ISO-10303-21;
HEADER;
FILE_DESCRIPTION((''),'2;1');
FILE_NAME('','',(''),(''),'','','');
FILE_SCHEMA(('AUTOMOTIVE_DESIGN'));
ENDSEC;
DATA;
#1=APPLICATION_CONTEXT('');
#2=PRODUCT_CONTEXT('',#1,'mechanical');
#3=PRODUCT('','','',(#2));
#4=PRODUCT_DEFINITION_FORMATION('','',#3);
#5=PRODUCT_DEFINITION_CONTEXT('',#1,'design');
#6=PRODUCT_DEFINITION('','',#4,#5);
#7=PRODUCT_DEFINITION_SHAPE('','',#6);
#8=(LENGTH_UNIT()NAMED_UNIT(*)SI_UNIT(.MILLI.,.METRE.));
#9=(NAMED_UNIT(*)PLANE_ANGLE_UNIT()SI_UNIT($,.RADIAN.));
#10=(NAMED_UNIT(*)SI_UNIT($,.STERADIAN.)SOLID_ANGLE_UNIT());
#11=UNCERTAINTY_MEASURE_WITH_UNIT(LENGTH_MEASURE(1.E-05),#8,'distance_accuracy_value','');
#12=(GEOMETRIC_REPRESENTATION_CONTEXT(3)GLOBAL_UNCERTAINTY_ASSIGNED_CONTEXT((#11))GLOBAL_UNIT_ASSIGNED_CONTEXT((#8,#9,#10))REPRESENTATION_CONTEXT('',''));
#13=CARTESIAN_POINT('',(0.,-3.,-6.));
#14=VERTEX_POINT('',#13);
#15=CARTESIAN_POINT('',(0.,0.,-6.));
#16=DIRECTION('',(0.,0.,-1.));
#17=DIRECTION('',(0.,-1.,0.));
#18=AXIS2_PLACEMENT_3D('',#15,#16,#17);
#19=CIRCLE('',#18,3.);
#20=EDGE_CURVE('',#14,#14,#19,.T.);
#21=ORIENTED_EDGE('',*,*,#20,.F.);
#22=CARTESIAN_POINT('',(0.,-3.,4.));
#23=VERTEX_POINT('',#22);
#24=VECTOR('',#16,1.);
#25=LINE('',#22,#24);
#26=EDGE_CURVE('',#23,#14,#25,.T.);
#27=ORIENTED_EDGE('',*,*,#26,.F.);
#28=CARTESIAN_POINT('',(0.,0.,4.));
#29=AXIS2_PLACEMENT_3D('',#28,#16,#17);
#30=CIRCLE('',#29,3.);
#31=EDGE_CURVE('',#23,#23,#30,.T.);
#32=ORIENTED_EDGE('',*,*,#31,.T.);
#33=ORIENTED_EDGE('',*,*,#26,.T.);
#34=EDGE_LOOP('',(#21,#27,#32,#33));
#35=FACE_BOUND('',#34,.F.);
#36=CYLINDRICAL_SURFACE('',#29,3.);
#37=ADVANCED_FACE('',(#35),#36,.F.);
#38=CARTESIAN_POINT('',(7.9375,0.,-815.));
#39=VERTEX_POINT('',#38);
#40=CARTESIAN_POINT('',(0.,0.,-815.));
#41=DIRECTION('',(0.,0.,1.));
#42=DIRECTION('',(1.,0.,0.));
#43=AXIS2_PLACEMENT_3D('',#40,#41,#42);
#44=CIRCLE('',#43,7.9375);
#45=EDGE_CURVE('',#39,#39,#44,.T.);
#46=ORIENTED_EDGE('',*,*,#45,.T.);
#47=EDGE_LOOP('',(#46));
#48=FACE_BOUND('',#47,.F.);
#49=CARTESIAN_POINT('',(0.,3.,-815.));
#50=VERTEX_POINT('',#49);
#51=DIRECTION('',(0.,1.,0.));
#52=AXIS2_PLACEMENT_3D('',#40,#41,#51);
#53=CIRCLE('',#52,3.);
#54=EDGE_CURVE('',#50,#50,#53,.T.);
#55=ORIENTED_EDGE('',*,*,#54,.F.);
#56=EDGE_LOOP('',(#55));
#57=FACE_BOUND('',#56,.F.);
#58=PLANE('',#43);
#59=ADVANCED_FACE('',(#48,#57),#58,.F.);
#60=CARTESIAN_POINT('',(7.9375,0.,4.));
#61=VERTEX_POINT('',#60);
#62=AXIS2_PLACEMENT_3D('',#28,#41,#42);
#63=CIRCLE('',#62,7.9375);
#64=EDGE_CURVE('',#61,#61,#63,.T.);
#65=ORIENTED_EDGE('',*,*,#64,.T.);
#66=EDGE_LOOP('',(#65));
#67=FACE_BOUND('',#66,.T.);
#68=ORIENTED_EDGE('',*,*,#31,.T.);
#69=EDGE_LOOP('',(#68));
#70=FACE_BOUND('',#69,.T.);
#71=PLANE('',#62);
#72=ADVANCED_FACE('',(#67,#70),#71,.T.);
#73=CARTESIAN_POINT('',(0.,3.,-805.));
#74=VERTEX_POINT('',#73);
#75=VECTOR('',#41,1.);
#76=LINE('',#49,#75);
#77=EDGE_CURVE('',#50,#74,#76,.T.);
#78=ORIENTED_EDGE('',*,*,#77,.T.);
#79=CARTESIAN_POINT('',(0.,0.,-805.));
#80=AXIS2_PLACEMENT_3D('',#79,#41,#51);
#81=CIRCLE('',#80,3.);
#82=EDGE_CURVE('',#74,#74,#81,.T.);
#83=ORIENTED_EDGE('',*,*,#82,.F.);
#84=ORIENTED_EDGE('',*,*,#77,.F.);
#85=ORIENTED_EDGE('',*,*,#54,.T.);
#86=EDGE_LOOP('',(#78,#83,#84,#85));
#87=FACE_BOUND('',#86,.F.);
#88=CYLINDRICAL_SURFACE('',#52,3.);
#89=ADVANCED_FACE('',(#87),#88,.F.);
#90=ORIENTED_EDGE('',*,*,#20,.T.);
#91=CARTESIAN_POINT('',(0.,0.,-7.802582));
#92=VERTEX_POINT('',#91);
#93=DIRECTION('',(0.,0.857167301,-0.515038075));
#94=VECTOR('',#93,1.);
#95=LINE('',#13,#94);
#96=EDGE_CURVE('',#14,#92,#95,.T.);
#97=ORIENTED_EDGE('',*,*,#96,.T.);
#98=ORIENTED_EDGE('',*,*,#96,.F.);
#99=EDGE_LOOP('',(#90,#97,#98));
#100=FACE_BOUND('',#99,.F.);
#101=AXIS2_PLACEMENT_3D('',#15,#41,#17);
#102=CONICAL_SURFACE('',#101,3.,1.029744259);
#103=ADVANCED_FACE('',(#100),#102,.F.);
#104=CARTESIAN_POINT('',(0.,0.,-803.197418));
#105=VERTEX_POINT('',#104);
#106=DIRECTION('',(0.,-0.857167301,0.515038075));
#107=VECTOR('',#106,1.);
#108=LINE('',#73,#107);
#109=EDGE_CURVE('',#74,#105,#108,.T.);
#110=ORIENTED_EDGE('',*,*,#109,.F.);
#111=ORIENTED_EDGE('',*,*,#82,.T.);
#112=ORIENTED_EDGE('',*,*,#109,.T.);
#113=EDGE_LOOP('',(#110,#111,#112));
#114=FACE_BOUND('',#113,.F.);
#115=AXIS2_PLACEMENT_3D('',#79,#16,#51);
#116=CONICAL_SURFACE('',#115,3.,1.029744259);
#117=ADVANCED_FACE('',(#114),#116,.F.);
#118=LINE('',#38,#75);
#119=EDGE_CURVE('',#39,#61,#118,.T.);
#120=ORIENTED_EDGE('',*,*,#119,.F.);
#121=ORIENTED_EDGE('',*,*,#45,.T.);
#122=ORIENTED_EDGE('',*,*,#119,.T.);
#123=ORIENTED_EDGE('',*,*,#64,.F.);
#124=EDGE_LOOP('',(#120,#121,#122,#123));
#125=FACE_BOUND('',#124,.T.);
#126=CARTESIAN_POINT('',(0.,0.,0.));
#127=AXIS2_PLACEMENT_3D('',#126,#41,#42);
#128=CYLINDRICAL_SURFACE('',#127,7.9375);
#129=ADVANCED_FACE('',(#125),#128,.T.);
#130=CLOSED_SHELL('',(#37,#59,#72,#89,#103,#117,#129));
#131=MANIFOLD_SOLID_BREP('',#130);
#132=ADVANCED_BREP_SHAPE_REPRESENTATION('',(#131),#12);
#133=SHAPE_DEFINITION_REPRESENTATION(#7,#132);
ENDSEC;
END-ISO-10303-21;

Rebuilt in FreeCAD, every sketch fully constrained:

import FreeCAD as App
import Part
import Sketcher

V = App.Vector

doc = App.newDocument("Part")
params = doc.addObject("Spreadsheet::Sheet", "Params")
for row, (alias, value) in enumerate([
    ("pad1_length", "815 mm"),
    ("pad2_length", "4 mm"),
    ("sketch3_diameter", "6 mm"),
    ("hole_diameter", "6 mm"),
    ("hole_depth", "10 mm"),
    ("sketch4_diameter", "6 mm"),
    ("hole2_diameter", "6 mm"),
    ("hole2_depth", "10 mm"),
], start=1):
    params.set(f"A{row}", alias)
    params.set(f"B{row}", "=" + value)
    params.setAlias(f"B{row}", alias)

body = doc.addObject("PartDesign::Body", "Body")

sketch1 = doc.addObject("Sketcher::SketchObject", "Sketch")
body.addObject(sketch1)
sketch1.AttachmentSupport = (doc.XY_Plane, [""])
sketch1.MapMode = "FlatFace"
sketch1.addGeometry(Part.Circle(V(0, 0, 0), V(0, 0, 1), 8), False)
sketch1.addConstraint(Sketcher.Constraint("Coincident", 0, 3, -1, 1))
sketch1.addConstraint(Sketcher.Constraint("Diameter", 0, 15.875))
pad1 = doc.addObject("PartDesign::Pad", "Pad")
body.addObject(pad1)
pad1.Profile = sketch1
pad1.setExpression("Length", "Params.pad1_length")
pad1.Reversed = True

sketch2 = doc.addObject("Sketcher::SketchObject", "Sketch001")
body.addObject(sketch2)
sketch2.AttachmentSupport = (doc.XY_Plane, [""])
sketch2.MapMode = "FlatFace"
sketch2.addGeometry(Part.Circle(V(0, 0, 0), V(0, 0, 1), 8), False)
sketch2.addConstraint(Sketcher.Constraint("Coincident", 0, 3, -1, 1))
sketch2.addConstraint(Sketcher.Constraint("Diameter", 0, 15.875))
pad2 = doc.addObject("PartDesign::Pad", "Pad001")
body.addObject(pad2)
pad2.Profile = sketch2
pad2.setExpression("Length", "Params.pad2_length")

sketch3 = doc.addObject("Sketcher::SketchObject", "Sketch002")
body.addObject(sketch3)
sketch3.AttachmentSupport = (doc.XY_Plane, [""])
sketch3.MapMode = "FlatFace"
sketch3.AttachmentOffset = App.Placement(V(0, 0, -815), App.Rotation())
sketch3.addGeometry(Part.Circle(V(0, 0, 0), V(0, 0, 1), 3), False)
sketch3.addConstraint(Sketcher.Constraint("Coincident", 0, 3, -1, 1))
sketch3.addConstraint(Sketcher.Constraint("Diameter", 0, 6.0))
sketch3.setExpression("Constraints[1]", "Params.sketch3_diameter")
doc.recompute()
hole = doc.addObject("PartDesign::Hole", "Hole")
body.addObject(hole)
hole.Profile = sketch3
hole.ThreadType = "None"
hole.setExpression("Diameter", "Params.hole_diameter")
hole.DepthType = "Dimension"
hole.setExpression("Depth", "Params.hole_depth")
hole.DrillPoint = "Angled"
hole.DrillPointAngle = 118
hole.Reversed = True

sketch4 = doc.addObject("Sketcher::SketchObject", "Sketch003")
body.addObject(sketch4)
sketch4.AttachmentSupport = (doc.XY_Plane, [""])
sketch4.MapMode = "FlatFace"
sketch4.AttachmentOffset = App.Placement(V(0, 0, 4), App.Rotation())
sketch4.addGeometry(Part.Circle(V(0, 0, 0), V(0, 0, 1), 3), False)
sketch4.addConstraint(Sketcher.Constraint("Coincident", 0, 3, -1, 1))
sketch4.addConstraint(Sketcher.Constraint("Diameter", 0, 6.0))
sketch4.setExpression("Constraints[1]", "Params.sketch4_diameter")
doc.recompute()
hole2 = doc.addObject("PartDesign::Hole", "Hole001")
body.addObject(hole2)
hole2.Profile = sketch4
hole2.ThreadType = "None"
hole2.setExpression("Diameter", "Params.hole2_diameter")
hole2.DepthType = "Dimension"
hole2.setExpression("Depth", "Params.hole2_depth")
hole2.DrillPoint = "Angled"
hole2.DrillPointAngle = 118

doc.recompute()
